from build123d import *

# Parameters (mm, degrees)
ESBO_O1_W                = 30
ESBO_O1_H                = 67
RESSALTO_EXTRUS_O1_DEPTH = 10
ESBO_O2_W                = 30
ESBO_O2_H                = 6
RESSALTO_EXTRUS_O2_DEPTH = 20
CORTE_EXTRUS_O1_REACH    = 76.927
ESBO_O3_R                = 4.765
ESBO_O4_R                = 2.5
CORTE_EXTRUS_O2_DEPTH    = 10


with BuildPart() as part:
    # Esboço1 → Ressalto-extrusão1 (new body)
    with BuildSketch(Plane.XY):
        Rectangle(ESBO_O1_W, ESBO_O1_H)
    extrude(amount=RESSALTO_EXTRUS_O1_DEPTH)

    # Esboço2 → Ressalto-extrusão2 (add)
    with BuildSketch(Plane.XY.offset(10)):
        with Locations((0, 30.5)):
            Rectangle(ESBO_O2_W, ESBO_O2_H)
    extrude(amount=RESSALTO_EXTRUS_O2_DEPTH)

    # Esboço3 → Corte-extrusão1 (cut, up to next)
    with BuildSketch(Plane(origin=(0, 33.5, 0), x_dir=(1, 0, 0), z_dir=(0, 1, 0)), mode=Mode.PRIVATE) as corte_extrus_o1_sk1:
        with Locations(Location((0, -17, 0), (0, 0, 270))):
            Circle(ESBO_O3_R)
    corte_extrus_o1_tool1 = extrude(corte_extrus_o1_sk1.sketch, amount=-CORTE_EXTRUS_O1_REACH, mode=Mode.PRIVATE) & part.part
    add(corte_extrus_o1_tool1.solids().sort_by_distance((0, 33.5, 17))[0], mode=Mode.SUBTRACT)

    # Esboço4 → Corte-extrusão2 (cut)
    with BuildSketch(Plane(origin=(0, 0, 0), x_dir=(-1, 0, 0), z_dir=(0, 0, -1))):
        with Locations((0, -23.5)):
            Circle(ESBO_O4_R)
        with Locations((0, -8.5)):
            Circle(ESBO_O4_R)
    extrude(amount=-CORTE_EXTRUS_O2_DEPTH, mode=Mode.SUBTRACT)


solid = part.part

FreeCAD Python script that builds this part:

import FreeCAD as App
import Part
import Sketcher
from FreeCAD import Vector
Q = App.Units.Quantity


def add_polygon(sketch, points):
    """Adds a closed chain of lines whose ends are joined by coincident constraints."""
    first, n = sketch.GeometryCount, len(points)
    for a, b in zip(points, points[1:] + points[:1]):
        sketch.addGeometry(Part.LineSegment(App.Vector(*a, 0), App.Vector(*b, 0)), False)
    for i in range(n):
        sketch.addConstraint(Sketcher.Constraint("Coincident", first + i, 2, first + (i + 1) % n, 1))

doc = App.newDocument("Part")
body = doc.addObject("PartDesign::Body", "Body")

# Sketch on XY plane
sketch1 = body.newObject("Sketcher::SketchObject", "Sketch")
sketch1.AttachmentSupport = (doc.getObject("XY_Plane"), [""])
sketch1.MapMode = "FlatFace"
add_polygon(sketch1, [(-15, 34), (-15, -34), (15, -34), (15, 34)])  # lines 0-3
sketch1.addConstraint(Sketcher.Constraint("Vertical", 0))
sketch1.addConstraint(Sketcher.Constraint("Horizontal", 1))
sketch1.addConstraint(Sketcher.Constraint("Vertical", 2))
sketch1.addConstraint(Sketcher.Constraint("Horizontal", 3))
sketch1.addConstraint(Sketcher.Constraint("Symmetric", 0, 2, 2, 2, -1, 1))
sketch1.addConstraint(Sketcher.Constraint("DistanceX", 1, 1, 1, 2, Q("30 mm")))
sketch1.addConstraint(Sketcher.Constraint("DistanceY", 0, 2, 0, 1, Q("67 mm")))
pad1 = body.newObject("PartDesign::Pad", "Pad")
pad1.Profile = sketch1
pad1.Length = 10

# Sketch on XY plane
sketch2 = body.newObject("Sketcher::SketchObject", "Sketch001")
sketch2.AttachmentSupport = (doc.getObject("XY_Plane"), [""])
sketch2.MapMode = "FlatFace"
sketch2.AttachmentOffset = App.Placement(Vector(0, 0, 10), App.Rotation())
add_polygon(sketch2, [(-15, 34), (-15, 28), (15, 28), (15, 34)])  # lines 0-3
sketch2.addConstraint(Sketcher.Constraint("Vertical", 0))
sketch2.addConstraint(Sketcher.Constraint("Horizontal", 1))
sketch2.addConstraint(Sketcher.Constraint("Vertical", 2))
sketch2.addConstraint(Sketcher.Constraint("Horizontal", 3))
sketch2.addConstraint(Sketcher.Constraint("DistanceX", 1, 1, 1, 2, Q("30 mm")))
sketch2.addConstraint(Sketcher.Constraint("DistanceY", 0, 2, 0, 1, Q("6 mm")))
sketch2.addConstraint(Sketcher.Constraint("DistanceX", 0, 2, -1, 1, Q("15 mm")))
sketch2.addConstraint(Sketcher.Constraint("DistanceY", -1, 1, 0, 2, Q("27.5 mm")))
pad2 = body.newObject("PartDesign::Pad", "Pad001")
pad2.Profile = sketch2
pad2.Length = 20

# Sketch on XZ plane
sketch3 = body.newObject("Sketcher::SketchObject", "Sketch002")
sketch3.AttachmentSupport = (doc.getObject("XZ_Plane"), [""])
sketch3.MapMode = "FlatFace"
sketch3.AttachmentOffset = App.Placement(Vector(0, 0, -33.5), App.Rotation())
sketch3.addGeometry(Part.Circle(Vector(0, 17, 0), Vector(0, 0, 1), 4.8), False)
sketch3.addConstraint(Sketcher.Constraint("PointOnObject", 0, 3, -2))
sketch3.addConstraint(Sketcher.Constraint("Diameter", 0, Q("9.53 mm")))
sketch3.addConstraint(Sketcher.Constraint("DistanceY", -1, 1, 0, 3, Q("17 mm")))
pocket1 = body.newObject("PartDesign::Pocket", "Pocket")
pocket1.Profile = sketch3
pocket1.Type = "UpToFirst"
pocket1.Reversed = True

# Sketch on XY plane
sketch4 = body.newObject("Sketcher::SketchObject", "Sketch003")
sketch4.AttachmentSupport = (doc.getObject("XY_Plane"), [""])
sketch4.MapMode = "FlatFace"
sketch4.addGeometry(Part.Circle(Vector(0, -23.5, 0), Vector(0, 0, 1), 2.5), False)
sketch4.addGeometry(Part.Circle(Vector(0, -8.5, 0), Vector(0, 0, 1), 2.5), False)
sketch4.addConstraint(Sketcher.Constraint("Equal", 0, 1))
sketch4.addConstraint(Sketcher.Constraint("PointOnObject", 0, 3, -2))
sketch4.addConstraint(Sketcher.Constraint("PointOnObject", 1, 3, -2))
sketch4.addConstraint(Sketcher.Constraint("Diameter", 0, Q("5 mm")))
sketch4.addConstraint(Sketcher.Constraint("DistanceY", 0, 3, 1, 3, Q("15 mm")))
sketch4.addConstraint(Sketcher.Constraint("DistanceY", 0, 3, -1, 1, Q("23.5 mm")))
pocket2 = body.newObject("PartDesign::Pocket", "Pocket001")
pocket2.Profile = sketch4
pocket2.Length = 10
pocket2.Reversed = True

doc.recompute()
